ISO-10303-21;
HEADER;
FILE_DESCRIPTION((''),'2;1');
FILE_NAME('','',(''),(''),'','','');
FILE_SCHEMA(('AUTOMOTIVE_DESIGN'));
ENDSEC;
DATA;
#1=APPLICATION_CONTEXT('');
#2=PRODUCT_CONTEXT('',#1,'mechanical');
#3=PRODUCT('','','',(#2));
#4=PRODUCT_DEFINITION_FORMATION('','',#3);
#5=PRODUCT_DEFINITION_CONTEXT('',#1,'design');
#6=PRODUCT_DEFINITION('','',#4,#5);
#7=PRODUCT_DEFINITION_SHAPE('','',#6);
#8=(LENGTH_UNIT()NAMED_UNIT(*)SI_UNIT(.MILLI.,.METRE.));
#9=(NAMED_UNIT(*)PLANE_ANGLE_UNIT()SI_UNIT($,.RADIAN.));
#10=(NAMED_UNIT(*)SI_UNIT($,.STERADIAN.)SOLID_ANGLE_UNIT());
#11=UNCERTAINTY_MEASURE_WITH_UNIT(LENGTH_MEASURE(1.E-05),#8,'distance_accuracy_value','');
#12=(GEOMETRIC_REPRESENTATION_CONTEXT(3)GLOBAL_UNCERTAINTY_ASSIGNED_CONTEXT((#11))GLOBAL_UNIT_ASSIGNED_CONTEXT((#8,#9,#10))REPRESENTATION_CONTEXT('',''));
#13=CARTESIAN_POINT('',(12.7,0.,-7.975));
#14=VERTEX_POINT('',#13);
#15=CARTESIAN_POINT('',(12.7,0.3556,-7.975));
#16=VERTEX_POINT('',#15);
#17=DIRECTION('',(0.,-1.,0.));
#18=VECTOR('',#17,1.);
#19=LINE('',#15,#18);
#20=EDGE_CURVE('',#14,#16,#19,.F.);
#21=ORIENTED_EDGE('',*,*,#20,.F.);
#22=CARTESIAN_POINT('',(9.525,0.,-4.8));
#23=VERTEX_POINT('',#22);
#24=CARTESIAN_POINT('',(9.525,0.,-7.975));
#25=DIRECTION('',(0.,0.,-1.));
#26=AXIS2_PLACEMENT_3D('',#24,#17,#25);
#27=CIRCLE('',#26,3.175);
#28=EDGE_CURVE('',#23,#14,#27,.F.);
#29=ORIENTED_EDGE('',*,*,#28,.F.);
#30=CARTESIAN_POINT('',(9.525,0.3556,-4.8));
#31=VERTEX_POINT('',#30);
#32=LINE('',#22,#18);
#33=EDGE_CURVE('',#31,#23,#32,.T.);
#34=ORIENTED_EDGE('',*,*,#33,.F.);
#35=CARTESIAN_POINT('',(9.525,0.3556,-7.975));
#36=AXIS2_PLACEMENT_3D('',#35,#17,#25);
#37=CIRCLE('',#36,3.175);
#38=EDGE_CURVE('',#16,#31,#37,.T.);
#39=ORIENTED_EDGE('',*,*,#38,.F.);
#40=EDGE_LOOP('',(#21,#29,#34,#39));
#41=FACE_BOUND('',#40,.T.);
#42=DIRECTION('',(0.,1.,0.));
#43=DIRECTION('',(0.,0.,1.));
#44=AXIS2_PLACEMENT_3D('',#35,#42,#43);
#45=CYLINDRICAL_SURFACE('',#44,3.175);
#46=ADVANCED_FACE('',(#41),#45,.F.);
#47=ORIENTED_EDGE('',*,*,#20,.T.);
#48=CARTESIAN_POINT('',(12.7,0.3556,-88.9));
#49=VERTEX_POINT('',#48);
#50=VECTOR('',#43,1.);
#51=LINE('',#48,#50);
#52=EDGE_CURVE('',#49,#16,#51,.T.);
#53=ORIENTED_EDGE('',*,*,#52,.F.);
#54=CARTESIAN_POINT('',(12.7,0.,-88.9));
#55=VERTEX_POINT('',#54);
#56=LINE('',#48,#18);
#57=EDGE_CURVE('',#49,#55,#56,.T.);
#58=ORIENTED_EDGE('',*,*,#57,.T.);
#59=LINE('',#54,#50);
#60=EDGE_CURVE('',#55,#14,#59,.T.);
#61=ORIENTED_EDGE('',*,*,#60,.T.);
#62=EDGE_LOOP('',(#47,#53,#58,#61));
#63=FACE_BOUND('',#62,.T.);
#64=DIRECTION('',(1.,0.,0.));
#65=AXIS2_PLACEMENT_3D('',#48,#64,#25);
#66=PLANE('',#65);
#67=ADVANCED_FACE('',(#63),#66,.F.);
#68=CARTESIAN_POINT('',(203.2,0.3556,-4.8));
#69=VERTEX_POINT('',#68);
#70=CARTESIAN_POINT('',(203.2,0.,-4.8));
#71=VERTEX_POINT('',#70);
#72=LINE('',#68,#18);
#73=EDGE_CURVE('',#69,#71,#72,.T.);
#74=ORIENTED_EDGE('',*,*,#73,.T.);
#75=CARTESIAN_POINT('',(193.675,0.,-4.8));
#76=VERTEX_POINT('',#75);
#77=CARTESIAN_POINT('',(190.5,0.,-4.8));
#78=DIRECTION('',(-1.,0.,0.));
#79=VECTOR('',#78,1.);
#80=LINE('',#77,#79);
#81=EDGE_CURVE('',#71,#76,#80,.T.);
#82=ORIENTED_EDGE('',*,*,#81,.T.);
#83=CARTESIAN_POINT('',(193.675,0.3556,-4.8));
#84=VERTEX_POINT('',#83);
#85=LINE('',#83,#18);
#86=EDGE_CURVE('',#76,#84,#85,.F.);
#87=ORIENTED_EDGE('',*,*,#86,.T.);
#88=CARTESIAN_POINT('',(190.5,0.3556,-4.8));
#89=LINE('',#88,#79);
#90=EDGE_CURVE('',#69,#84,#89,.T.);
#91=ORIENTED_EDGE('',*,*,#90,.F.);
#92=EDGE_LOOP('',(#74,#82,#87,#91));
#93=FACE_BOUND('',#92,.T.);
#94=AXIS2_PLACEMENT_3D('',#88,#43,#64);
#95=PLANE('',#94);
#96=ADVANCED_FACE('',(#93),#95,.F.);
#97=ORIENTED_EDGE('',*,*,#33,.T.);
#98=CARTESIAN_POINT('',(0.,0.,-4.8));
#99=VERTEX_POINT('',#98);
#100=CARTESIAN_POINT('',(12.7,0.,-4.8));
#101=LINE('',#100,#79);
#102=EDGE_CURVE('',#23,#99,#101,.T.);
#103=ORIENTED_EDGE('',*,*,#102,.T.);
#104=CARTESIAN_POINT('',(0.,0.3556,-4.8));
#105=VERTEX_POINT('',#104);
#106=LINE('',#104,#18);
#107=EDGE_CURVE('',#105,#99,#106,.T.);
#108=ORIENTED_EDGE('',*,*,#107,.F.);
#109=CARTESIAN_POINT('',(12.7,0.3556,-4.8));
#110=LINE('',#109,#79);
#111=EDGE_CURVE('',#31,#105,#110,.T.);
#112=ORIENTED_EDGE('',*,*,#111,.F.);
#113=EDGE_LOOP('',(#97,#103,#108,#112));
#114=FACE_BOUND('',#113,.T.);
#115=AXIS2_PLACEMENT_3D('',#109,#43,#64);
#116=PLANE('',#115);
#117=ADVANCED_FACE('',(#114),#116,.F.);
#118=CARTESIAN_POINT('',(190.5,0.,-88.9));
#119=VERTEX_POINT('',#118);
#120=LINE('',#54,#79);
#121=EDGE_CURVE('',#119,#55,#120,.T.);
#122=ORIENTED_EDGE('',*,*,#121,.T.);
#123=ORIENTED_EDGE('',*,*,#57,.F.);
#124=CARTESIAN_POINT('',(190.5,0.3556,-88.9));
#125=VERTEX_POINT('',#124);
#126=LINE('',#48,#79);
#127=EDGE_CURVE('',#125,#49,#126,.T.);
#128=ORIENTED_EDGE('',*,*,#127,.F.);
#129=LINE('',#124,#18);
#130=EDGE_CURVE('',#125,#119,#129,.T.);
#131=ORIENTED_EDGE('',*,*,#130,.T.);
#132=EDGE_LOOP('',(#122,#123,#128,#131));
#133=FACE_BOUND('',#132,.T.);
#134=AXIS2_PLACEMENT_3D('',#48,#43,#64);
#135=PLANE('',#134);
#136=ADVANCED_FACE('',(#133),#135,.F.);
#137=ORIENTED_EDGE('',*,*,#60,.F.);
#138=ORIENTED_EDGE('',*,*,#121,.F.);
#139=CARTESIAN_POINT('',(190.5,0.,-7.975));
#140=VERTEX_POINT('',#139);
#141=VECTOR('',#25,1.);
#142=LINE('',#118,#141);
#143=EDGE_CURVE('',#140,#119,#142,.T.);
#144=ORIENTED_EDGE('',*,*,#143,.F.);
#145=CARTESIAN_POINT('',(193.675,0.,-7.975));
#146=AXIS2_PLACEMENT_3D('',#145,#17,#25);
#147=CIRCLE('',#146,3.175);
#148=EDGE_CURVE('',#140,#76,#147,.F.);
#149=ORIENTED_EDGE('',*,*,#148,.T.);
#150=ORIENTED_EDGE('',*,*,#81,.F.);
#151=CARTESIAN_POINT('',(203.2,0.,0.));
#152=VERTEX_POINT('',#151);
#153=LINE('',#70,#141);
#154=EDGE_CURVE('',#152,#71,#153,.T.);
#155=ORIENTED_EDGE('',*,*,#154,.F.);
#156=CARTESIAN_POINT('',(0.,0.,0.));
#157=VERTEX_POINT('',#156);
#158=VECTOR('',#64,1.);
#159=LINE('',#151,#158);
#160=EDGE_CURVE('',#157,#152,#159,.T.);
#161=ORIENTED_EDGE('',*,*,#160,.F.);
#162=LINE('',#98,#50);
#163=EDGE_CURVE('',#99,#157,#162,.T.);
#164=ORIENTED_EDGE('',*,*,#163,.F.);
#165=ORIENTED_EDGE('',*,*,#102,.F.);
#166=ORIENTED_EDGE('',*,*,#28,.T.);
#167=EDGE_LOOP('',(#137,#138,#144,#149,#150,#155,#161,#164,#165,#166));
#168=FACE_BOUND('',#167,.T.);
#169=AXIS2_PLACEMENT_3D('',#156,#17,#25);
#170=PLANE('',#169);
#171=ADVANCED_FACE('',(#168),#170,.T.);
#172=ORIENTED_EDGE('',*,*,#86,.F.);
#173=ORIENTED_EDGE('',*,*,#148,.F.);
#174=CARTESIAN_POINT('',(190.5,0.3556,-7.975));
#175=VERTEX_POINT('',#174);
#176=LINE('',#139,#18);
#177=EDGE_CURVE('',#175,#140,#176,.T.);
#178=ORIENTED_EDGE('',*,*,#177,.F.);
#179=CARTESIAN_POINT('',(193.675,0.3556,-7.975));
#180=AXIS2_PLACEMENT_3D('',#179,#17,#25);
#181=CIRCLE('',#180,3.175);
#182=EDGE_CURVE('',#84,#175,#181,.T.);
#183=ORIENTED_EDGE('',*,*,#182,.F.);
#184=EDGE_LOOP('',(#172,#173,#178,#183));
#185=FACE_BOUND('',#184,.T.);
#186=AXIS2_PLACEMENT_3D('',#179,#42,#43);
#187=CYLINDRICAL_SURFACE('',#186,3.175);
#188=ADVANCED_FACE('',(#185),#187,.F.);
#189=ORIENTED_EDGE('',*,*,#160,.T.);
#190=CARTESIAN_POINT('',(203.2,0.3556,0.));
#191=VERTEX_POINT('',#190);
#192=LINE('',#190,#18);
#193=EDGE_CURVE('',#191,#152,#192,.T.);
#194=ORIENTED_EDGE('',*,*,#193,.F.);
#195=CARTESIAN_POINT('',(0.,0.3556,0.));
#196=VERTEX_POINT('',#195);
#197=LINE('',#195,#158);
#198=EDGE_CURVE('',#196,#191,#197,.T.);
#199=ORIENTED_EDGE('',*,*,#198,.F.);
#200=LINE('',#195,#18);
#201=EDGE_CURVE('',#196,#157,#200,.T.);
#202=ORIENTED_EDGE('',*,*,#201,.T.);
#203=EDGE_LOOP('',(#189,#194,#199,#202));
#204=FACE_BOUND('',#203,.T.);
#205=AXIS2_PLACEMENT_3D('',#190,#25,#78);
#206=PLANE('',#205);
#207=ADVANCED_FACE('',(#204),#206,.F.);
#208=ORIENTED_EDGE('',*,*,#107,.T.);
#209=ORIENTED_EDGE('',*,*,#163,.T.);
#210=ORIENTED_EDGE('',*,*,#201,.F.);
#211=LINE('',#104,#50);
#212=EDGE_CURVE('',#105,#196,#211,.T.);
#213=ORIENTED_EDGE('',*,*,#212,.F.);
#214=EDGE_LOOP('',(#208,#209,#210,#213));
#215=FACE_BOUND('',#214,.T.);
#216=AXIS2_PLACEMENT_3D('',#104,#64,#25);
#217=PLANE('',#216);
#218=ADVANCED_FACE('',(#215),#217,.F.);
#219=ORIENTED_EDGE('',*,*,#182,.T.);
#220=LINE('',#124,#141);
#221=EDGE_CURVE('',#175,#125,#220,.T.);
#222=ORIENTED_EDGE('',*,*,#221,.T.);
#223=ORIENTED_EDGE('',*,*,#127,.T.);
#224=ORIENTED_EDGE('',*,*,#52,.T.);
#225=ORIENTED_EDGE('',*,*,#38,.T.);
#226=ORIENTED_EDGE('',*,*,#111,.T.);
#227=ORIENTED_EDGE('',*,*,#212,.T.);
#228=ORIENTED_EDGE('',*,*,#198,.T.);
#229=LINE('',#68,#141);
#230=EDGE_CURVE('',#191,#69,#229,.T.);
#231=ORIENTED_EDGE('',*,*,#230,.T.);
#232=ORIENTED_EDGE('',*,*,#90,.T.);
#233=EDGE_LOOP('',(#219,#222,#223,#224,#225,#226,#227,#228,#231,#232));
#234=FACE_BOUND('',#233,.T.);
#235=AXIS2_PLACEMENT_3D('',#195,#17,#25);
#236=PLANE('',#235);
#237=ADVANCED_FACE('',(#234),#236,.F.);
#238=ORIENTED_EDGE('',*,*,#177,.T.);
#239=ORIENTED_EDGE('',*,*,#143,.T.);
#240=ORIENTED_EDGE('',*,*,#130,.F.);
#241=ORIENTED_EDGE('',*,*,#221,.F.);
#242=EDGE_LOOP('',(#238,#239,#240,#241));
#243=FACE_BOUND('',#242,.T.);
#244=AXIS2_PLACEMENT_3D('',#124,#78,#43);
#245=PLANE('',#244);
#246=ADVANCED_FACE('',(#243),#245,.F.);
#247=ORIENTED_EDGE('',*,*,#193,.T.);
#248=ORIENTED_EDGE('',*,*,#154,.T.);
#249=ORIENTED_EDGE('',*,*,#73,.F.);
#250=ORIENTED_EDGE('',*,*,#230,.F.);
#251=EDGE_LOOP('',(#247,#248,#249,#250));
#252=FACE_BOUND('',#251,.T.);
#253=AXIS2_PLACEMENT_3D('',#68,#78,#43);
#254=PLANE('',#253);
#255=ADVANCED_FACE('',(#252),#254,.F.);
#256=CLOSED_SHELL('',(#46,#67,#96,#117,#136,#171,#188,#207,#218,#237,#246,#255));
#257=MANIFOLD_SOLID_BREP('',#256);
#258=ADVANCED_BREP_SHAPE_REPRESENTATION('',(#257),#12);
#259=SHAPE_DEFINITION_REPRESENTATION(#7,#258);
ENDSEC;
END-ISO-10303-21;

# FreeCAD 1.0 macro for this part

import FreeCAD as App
import Part
import Sketcher

V = App.Vector
Q = App.Units.Quantity


def edges_at(feature, points):
    """Names of the edges that pass closest to the given points."""
    edges = feature.Shape.Edges
    near = lambda p: min(range(len(edges)), key=lambda i: edges[i].distToShape(Part.Vertex(*p))[0])
    return sorted({f"Edge{near(p) + 1}" for p in points})


def add_polygon(sketch, points):
    """Adds a closed chain of lines whose ends are joined by coincident constraints."""
    first, n = sketch.GeometryCount, len(points)
    for a, b in zip(points, points[1:] + points[:1]):
        sketch.addGeometry(Part.LineSegment(App.Vector(*a, 0), App.Vector(*b, 0)), False)
    for i in range(n):
        sketch.addConstraint(Sketcher.Constraint("Coincident", first + i, 2, first + (i + 1) % n, 1))

doc = App.newDocument("Part")
params = doc.addObject("Spreadsheet::Sheet", "Params")
for row, (alias, value) in enumerate([
    ("sketch1_width", "8 in"),
    ("sketch1_width2", "7 in"),
    ("pad1_length", "0.014 in"),
    ("fillet_radius", "0.125 in"),
], start=1):
    params.set(f"A{row}", alias)
    params.set(f"B{row}", "=" + value)
    params.setAlias(f"B{row}", alias)

body = doc.addObject("PartDesign::Body", "Body")

# Sketch on XZ plane
sketch1 = body.newObject("Sketcher::SketchObject", "Sketch")
sketch1.AttachmentSupport = (doc.getObject("XZ_Plane"), [""])
sketch1.MapMode = "FlatFace"
add_polygon(sketch1, [(12.7, -88.9), (12.7, -4.8), (0, -4.8), (0, 0), (203.2, 0), (203.2, -4.8), (190.5, -4.8), (190.5, -88.9)])  # lines 0-7
sketch1.addConstraint([
    Sketcher.Constraint("Vertical", 0),
    Sketcher.Constraint("Horizontal", 1),
    Sketcher.Constraint("Vertical", 2),
    Sketcher.Constraint("Horizontal", 3),
    Sketcher.Constraint("Vertical", 4),
    Sketcher.Constraint("Horizontal", 5),
    Sketcher.Constraint("Vertical", 6),
    Sketcher.Constraint("Horizontal", 7),
    Sketcher.Constraint("Coincident", 2, 2, -1, 1),
    Sketcher.Constraint("Horizontal", 1, 2, 4, 2),
    Sketcher.Constraint("Equal", 1, 5),
    Sketcher.Constraint("DistanceX", 3, 1, 3, 2, Q("8 in")),
    Sketcher.Constraint("DistanceX", 7, 2, 7, 1, Q("7 in")),
    Sketcher.Constraint("DistanceY", 6, 2, -1, 1, Q("3.5 in")),
    Sketcher.Constraint("DistanceY", 0, 1, 0, 2, 84.1),
])
sketch1.setExpression("Constraints[19]", "Params.sketch1_width")
sketch1.setExpression("Constraints[20]", "Params.sketch1_width2")
pad1 = body.newObject("PartDesign::Pad", "Pad")
pad1.Profile = sketch1
pad1.setExpression("Length", "Params.pad1_length")
pad1.Reversed = True
doc.recompute()

fillet = body.newObject("PartDesign::Fillet", "Fillet")
fillet.Base = (pad1, edges_at(pad1, [(12.7, 0.178, -4.8), (190.5, 0.178, -4.8)]))
fillet.setExpression("Radius", "Params.fillet_radius")

doc.recompute()
